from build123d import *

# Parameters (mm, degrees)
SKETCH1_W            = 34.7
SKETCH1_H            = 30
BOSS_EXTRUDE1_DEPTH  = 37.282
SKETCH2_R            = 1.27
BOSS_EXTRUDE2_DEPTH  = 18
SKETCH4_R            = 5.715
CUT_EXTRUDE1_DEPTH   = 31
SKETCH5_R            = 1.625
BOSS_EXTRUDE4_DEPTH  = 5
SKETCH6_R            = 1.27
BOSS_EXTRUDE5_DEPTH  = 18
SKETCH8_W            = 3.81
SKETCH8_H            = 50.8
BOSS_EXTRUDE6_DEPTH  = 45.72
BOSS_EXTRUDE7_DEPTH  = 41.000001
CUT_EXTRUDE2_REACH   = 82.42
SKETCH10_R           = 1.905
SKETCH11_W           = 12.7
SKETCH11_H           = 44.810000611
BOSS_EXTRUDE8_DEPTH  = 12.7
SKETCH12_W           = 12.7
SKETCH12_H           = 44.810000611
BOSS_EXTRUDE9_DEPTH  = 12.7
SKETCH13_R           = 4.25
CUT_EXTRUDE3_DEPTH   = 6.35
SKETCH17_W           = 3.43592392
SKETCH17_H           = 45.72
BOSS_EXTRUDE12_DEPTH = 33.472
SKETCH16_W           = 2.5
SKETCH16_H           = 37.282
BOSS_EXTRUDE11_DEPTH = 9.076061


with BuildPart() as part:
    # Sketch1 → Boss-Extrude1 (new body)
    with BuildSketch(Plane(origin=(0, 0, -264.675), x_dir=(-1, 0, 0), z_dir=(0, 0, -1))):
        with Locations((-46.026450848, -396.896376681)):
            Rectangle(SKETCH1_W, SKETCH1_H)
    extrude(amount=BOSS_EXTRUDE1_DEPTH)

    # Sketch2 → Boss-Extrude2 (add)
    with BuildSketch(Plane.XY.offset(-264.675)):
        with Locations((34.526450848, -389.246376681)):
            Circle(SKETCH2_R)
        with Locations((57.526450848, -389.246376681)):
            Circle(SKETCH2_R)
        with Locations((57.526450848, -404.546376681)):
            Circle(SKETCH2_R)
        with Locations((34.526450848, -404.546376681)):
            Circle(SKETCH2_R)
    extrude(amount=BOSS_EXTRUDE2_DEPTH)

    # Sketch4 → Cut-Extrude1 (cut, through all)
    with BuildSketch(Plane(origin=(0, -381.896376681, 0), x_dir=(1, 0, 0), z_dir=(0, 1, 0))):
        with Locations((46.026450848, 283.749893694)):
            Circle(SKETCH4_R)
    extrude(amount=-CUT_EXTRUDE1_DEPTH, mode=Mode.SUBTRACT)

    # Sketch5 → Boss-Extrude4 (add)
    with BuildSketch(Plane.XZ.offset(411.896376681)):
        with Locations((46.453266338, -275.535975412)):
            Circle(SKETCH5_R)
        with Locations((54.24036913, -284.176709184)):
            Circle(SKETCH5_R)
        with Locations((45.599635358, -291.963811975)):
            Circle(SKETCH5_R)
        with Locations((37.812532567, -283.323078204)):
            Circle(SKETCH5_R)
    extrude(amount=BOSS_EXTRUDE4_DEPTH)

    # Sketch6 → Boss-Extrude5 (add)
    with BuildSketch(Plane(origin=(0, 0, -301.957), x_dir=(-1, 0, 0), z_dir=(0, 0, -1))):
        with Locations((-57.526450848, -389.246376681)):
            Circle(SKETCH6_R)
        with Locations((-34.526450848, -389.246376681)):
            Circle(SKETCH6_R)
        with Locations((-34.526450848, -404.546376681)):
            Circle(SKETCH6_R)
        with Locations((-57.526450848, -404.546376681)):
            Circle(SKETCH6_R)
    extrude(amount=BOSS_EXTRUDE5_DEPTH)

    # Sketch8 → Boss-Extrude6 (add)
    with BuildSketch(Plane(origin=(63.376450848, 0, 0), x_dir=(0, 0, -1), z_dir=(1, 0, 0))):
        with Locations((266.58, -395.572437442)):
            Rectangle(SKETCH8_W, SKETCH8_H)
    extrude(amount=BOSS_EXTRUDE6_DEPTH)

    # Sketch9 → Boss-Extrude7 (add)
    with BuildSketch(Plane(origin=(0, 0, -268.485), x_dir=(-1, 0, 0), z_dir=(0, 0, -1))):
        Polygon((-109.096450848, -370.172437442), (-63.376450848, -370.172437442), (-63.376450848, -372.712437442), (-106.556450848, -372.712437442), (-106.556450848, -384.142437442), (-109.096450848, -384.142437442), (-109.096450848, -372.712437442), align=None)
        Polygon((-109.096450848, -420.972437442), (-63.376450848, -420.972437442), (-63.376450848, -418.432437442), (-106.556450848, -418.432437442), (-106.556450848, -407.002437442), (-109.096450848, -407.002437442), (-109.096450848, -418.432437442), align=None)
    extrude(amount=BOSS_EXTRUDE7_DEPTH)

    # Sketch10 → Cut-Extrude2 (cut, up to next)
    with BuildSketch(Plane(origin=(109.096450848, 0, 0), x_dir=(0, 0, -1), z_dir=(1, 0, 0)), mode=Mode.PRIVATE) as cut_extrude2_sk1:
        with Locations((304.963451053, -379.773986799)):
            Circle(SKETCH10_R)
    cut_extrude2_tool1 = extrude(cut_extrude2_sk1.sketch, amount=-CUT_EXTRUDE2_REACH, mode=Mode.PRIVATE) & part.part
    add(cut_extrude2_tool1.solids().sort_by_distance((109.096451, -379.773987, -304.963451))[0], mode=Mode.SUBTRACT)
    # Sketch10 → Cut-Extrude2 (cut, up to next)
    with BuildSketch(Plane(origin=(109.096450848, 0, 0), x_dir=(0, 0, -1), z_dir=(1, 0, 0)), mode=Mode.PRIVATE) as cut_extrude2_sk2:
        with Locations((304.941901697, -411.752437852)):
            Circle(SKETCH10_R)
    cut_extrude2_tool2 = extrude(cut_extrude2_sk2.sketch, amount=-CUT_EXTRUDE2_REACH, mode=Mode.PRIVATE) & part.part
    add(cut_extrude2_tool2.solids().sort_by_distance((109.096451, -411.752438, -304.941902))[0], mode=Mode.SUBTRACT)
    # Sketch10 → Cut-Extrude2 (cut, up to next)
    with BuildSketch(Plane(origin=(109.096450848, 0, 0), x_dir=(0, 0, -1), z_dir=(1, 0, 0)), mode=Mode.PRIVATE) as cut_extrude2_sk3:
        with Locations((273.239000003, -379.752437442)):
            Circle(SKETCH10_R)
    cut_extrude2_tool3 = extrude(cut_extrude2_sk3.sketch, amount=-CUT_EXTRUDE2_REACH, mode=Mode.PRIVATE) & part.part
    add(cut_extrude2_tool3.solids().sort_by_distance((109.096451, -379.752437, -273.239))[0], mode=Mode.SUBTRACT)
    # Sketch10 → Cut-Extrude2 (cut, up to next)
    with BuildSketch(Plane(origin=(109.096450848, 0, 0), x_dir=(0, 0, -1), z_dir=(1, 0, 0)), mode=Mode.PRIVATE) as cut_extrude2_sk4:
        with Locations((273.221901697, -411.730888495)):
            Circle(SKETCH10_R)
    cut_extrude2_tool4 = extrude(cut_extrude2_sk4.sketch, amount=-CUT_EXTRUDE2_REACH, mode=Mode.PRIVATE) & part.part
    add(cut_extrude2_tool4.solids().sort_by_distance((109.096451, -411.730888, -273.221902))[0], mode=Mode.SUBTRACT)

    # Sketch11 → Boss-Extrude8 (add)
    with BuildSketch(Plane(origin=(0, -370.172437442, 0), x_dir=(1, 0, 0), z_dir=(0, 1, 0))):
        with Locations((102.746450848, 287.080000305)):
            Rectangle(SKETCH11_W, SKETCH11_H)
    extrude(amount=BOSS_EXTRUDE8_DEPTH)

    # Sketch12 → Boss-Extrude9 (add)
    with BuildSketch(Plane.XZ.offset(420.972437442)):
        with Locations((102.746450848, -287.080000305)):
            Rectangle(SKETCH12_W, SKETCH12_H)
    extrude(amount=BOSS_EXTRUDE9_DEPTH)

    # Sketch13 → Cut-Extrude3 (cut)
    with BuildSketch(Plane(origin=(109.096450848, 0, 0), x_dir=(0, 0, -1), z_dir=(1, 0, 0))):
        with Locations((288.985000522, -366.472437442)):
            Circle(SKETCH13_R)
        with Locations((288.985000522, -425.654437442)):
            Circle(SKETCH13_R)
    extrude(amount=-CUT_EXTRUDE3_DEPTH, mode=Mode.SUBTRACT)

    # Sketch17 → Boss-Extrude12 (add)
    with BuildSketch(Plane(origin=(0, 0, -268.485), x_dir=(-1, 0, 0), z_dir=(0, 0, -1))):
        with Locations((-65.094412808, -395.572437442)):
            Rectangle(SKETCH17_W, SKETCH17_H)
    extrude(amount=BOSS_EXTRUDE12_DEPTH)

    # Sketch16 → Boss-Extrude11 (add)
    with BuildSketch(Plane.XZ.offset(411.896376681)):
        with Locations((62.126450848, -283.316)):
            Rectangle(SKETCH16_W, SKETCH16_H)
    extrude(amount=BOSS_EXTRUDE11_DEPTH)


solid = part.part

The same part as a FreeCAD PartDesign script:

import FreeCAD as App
import Part
import Sketcher
Q = App.Units.Quantity

doc = App.newDocument("Part")
body = doc.addObject("PartDesign::Body", "Body")

sketch1 = body.newObject("Sketcher::SketchObject", "Sketch")
sketch1.AttachmentSupport = (doc.getObject("XY_Plane"), [""])
sketch1.MapMode = "FlatFace"
sketch1.AttachmentOffset = App.Placement(App.Vector(0, 0, -264.675), App.Rotation())
sketch1.addGeometry([
    Part.LineSegment(App.Vector(63, -382, 0), App.Vector(63, -412, 0)),
    Part.LineSegment(App.Vector(63, -412, 0), App.Vector(29, -412, 0)),
    Part.LineSegment(App.Vector(29, -412, 0), App.Vector(29, -382, 0)),
    Part.LineSegment(App.Vector(29, -382, 0), App.Vector(63, -382, 0)),
], False)
sketch1.addConstraint([
    Sketcher.Constraint("Coincident", 0, 2, 1, 1),
    Sketcher.Constraint("Coincident", 1, 2, 2, 1),
    Sketcher.Constraint("Coincident", 2, 2, 3, 1),
    Sketcher.Constraint("Coincident", 3, 2, 0, 1),
    Sketcher.Constraint("Vertical", 0),
    Sketcher.Constraint("Horizontal", 1),
    Sketcher.Constraint("Vertical", 2),
    Sketcher.Constraint("Horizontal", 3),
    Sketcher.Constraint("DistanceX", 1, 2, 1, 1, Q("34.7 mm")),
    Sketcher.Constraint("DistanceY", 0, 2, 0, 1, Q("30 mm")),
    Sketcher.Constraint("DistanceX", -1, 1, 0, 2, Q("63.376451 mm")),
    Sketcher.Constraint("DistanceY", 0, 2, -1, 1, Q("411.896377 mm")),
])
pad1 = body.newObject("PartDesign::Pad", "Pad")
pad1.Profile = sketch1
pad1.Length = 37.282
pad1.Reversed = True

sketch2 = body.newObject("Sketcher::SketchObject", "Sketch001")
sketch2.AttachmentSupport = (doc.getObject("XY_Plane"), [""])
sketch2.MapMode = "FlatFace"
sketch2.AttachmentOffset = App.Placement(App.Vector(0, 0, -264.675), App.Rotation())
sketch2.addGeometry([
    Part.Circle(App.Vector(34.5, -389.2, 0), App.Vector(0, 0, 1), 1.3),
    Part.Circle(App.Vector(57.5, -389.2, 0), App.Vector(0, 0, 1), 1.3),
    Part.Circle(App.Vector(57.5, -404.5, 0), App.Vector(0, 0, 1), 1.3),
    Part.Circle(App.Vector(34.5, -404.5, 0), App.Vector(0, 0, 1), 1.3),
], False)
sketch2.addConstraint([
    Sketcher.Constraint("Equal", 0, 1),
    Sketcher.Constraint("Equal", 1, 2),
    Sketcher.Constraint("Equal", 2, 3),
    Sketcher.Constraint("Horizontal", 0, 3, 1, 3),
    Sketcher.Constraint("Horizontal", 2, 3, 3, 3),
    Sketcher.Constraint("Vertical", 1, 3, 2, 3),
    Sketcher.Constraint("Vertical", 0, 3, 3, 3),
    Sketcher.Constraint("Diameter", 0, Q("0.1 in")),
    Sketcher.Constraint("DistanceX", 0, 3, 1, 3, Q("23 mm")),
    Sketcher.Constraint("DistanceY", 2, 3, 1, 3, Q("15.3 mm")),
    Sketcher.Constraint("DistanceX", -1, 1, 0, 3, Q("34.526451 mm")),
    Sketcher.Constraint("DistanceY", 0, 3, -1, 1, Q("389.246377 mm")),
])
pad2 = body.newObject("PartDesign::Pad", "Pad001")
pad2.Profile = sketch2
pad2.Length = 18

sketch3 = body.newObject("Sketcher::SketchObject", "Sketch002")
sketch3.AttachmentSupport = (doc.getObject("XZ_Plane"), [""])
sketch3.MapMode = "FlatFace"
sketch3.AttachmentOffset = App.Placement(App.Vector(0, 0, 381.896377), App.Rotation())
sketch3.addGeometry(Part.Circle(App.Vector(46, -284, 0), App.Vector(0, 0, 1), 6), False)
sketch3.addConstraint([
    Sketcher.Constraint("Diameter", 0, Q("0.45 in")),
    Sketcher.Constraint("DistanceX", -1, 1, 0, 3, Q("46.026451 mm")),
    Sketcher.Constraint("DistanceY", 0, 3, -1, 1, Q("283.749894 mm")),
])
pocket1 = body.newObject("PartDesign::Pocket", "Pocket")
pocket1.Profile = sketch3
pocket1.Type = "ThroughAll"
pocket1.Reversed = True

sketch4 = body.newObject("Sketcher::SketchObject", "Sketch003")
sketch4.AttachmentSupport = (doc.getObject("XZ_Plane"), [""])
sketch4.MapMode = "FlatFace"
sketch4.AttachmentOffset = App.Placement(App.Vector(0, 0, 411.896377), App.Rotation())
sketch4.addGeometry([
    Part.Circle(App.Vector(46.5, -275.5, 0), App.Vector(0, 0, 1), 1.6),
    Part.Circle(App.Vector(54.2, -284.2, 0), App.Vector(0, 0, 1), 1.6),
    Part.Circle(App.Vector(45.6, -292, 0), App.Vector(0, 0, 1), 1.6),
    Part.Circle(App.Vector(37.8, -283.3, 0), App.Vector(0, 0, 1), 1.6),
], False)
sketch4.addConstraint([
    Sketcher.Constraint("Equal", 0, 1),
    Sketcher.Constraint("Equal", 1, 2),
    Sketcher.Constraint("Equal", 2, 3),
    Sketcher.Constraint("Diameter", 0, Q("3.25 mm")),
    Sketcher.Constraint("DistanceX", -1, 1, 1, 3, Q("54.240369 mm")),
    Sketcher.Constraint("DistanceY", 1, 3, -1, 1, Q("284.176709 mm")),
    Sketcher.Constraint("DistanceY", 2, 3, -1, 1, Q("291.963812 mm")),
    Sketcher.Constraint("DistanceY", 3, 3, -1, 1, Q("283.323078 mm")),
    Sketcher.Constraint("DistanceX", 2, 3, 0, 3, Q("0.853631 mm")),
    Sketcher.Constraint("DistanceX", -1, 1, 0, 3, Q("46.453266 mm")),
    Sketcher.Constraint("DistanceY", 0, 3, -1, 1, Q("275.535975 mm")),
    Sketcher.Constraint("DistanceX", -1, 1, 3, 3, Q("37.812533 mm")),
])
pad3 = body.newObject("PartDesign::Pad", "Pad002")
pad3.Profile = sketch4
pad3.Length = 5

sketch5 = body.newObject("Sketcher::SketchObject", "Sketch004")
sketch5.AttachmentSupport = (doc.getObject("XY_Plane"), [""])
sketch5.MapMode = "FlatFace"
sketch5.AttachmentOffset = App.Placement(App.Vector(0, 0, -301.957), App.Rotation())
sketch5.addGeometry([
    Part.Circle(App.Vector(57.5, -389.2, 0), App.Vector(0, 0, 1), 1.3),
    Part.Circle(App.Vector(34.5, -389.2, 0), App.Vector(0, 0, 1), 1.3),
    Part.Circle(App.Vector(34.5, -404.5, 0), App.Vector(0, 0, 1), 1.3),
    Part.Circle(App.Vector(57.5, -404.5, 0), App.Vector(0, 0, 1), 1.3),
], False)
sketch5.addConstraint([
    Sketcher.Constraint("Equal", 0, 1),
    Sketcher.Constraint("Equal", 1, 2),
    Sketcher.Constraint("Equal", 2, 3),
    Sketcher.Constraint("Horizontal", 0, 3, 1, 3),
    Sketcher.Constraint("Horizontal", 2, 3, 3, 3),
    Sketcher.Constraint("Vertical", 1, 3, 2, 3),
    Sketcher.Constraint("Vertical", 0, 3, 3, 3),
    Sketcher.Constraint("Diameter", 0, Q("0.1 in")),
    Sketcher.Constraint("DistanceX", 1, 3, 0, 3, Q("23 mm")),
    Sketcher.Constraint("DistanceY", 2, 3, 1, 3, Q("15.3 mm")),
    Sketcher.Constraint("DistanceX", -1, 1, 0, 3, Q("57.526451 mm")),
    Sketcher.Constraint("DistanceY", 0, 3, -1, 1, Q("389.246377 mm")),
])
pad4 = body.newObject("PartDesign::Pad", "Pad003")
pad4.Profile = sketch5
pad4.Length = 18
pad4.Reversed = True

sketch6 = body.newObject("Sketcher::SketchObject", "Sketch005")
sketch6.AttachmentSupport = (doc.getObject("YZ_Plane"), [""])
sketch6.MapMode = "FlatFace"
sketch6.AttachmentOffset = App.Placement(App.Vector(0, 0, 63.376451), App.Rotation())
sketch6.addGeometry([
    Part.LineSegment(App.Vector(-370.2, -264.7, 0), App.Vector(-421, -264.7, 0)),
    Part.LineSegment(App.Vector(-421, -264.7, 0), App.Vector(-421, -268.5, 0)),
    Part.LineSegment(App.Vector(-421, -268.5, 0), App.Vector(-370.2, -268.5, 0)),
    Part.LineSegment(App.Vector(-370.2, -268.5, 0), App.Vector(-370.2, -264.7, 0)),
], False)
sketch6.addConstraint([
    Sketcher.Constraint("Coincident", 0, 2, 1, 1),
    Sketcher.Constraint("Coincident", 1, 2, 2, 1),
    Sketcher.Constraint("Coincident", 2, 2, 3, 1),
    Sketcher.Constraint("Coincident", 3, 2, 0, 1),
    Sketcher.Constraint("Horizontal", 0),
    Sketcher.Constraint("Vertical", 1),
    Sketcher.Constraint("Horizontal", 2),
    Sketcher.Constraint("Vertical", 3),
    Sketcher.Constraint("DistanceX", 0, 2, 0, 1, Q("2 in")),
    Sketcher.Constraint("DistanceY", 1, 2, 1, 1, Q("0.15 in")),
    Sketcher.Constraint("DistanceY", 0, 2, -1, 1, Q("264.675 mm")),
    Sketcher.Constraint("DistanceX", 0, 2, -1, 1, Q("420.972437 mm")),
])
pad5 = body.newObject("PartDesign::Pad", "Pad004")
pad5.Profile = sketch6
pad5.Length = Q("1.8 in")

sketch7 = body.newObject("Sketcher::SketchObject", "Sketch006")
sketch7.AttachmentSupport = (doc.getObject("XY_Plane"), [""])
sketch7.MapMode = "FlatFace"
sketch7.AttachmentOffset = App.Placement(App.Vector(0, 0, -268.485), App.Rotation())
sketch7.addGeometry([
    Part.LineSegment(App.Vector(63.4, -370.2, 0), App.Vector(109.1, -370.2, 0)),
    Part.LineSegment(App.Vector(109.1, -370.2, 0), App.Vector(109.1, -384.1, 0)),
    Part.LineSegment(App.Vector(109.1, -384.1, 0), App.Vector(106.6, -384.1, 0)),
    Part.LineSegment(App.Vector(106.6, -384.1, 0), App.Vector(106.6, -372.7, 0)),
    Part.LineSegment(App.Vector(106.6, -372.7, 0), App.Vector(63.4, -372.7, 0)),
    Part.LineSegment(App.Vector(63.4, -372.7, 0), App.Vector(63.4, -370.2, 0)),
    Part.LineSegment(App.Vector(109.1, -421, 0), App.Vector(63.4, -421, 0)),
    Part.LineSegment(App.Vector(63.4, -421, 0), App.Vector(63.4, -418.4, 0)),
    Part.LineSegment(App.Vector(63.4, -418.4, 0), App.Vector(106.6, -418.4, 0)),
    Part.LineSegment(App.Vector(106.6, -418.4, 0), App.Vector(106.6, -407, 0)),
    Part.LineSegment(App.Vector(106.6, -407, 0), App.Vector(109.1, -407, 0)),
    Part.LineSegment(App.Vector(109.1, -407, 0), App.Vector(109.1, -421, 0)),
], False)
sketch7.addConstraint([
    Sketcher.Constraint("Coincident", 0, 2, 1, 1),
    Sketcher.Constraint("Coincident", 1, 2, 2, 1),
    Sketcher.Constraint("Coincident", 2, 2, 3, 1),
    Sketcher.Constraint("Coincident", 3, 2, 4, 1),
    Sketcher.Constraint("Coincident", 4, 2, 5, 1),
    Sketcher.Constraint("Coincident", 5, 2, 0, 1),
    Sketcher.Constraint("Coincident", 6, 2, 7, 1),
    Sketcher.Constraint("Coincident", 7, 2, 8, 1),
    Sketcher.Constraint("Coincident", 8, 2, 9, 1),
    Sketcher.Constraint("Coincident", 9, 2, 10, 1),
    Sketcher.Constraint("Coincident", 10, 2, 11, 1),
    Sketcher.Constraint("Coincident", 11, 2, 6, 1),
    Sketcher.Constraint("Horizontal", 0),
    Sketcher.Constraint("Vertical", 1),
    Sketcher.Constraint("Horizontal", 2),
    Sketcher.Constraint("Vertical", 3),
    Sketcher.Constraint("Horizontal", 4),
    Sketcher.Constraint("Vertical", 5),
    Sketcher.Constraint("Horizontal", 6),
    Sketcher.Constraint("Vertical", 7),
    Sketcher.Constraint("Horizontal", 8),
    Sketcher.Constraint("Vertical", 9),
    Sketcher.Constraint("Horizontal", 10),
    Sketcher.Constraint("Vertical", 11),
    Sketcher.Constraint("Vertical", 5, 2, 6, 2),
    Sketcher.Constraint("Vertical", 3, 2, 8, 2),
    Sketcher.Constraint("Vertical", 1, 2, 10, 2),
    Sketcher.Constraint("Equal", 10, 5),
    Sketcher.Constraint("Equal", 5, 7),
    Sketcher.Constraint("Equal", 3, 9),
    Sketcher.Constraint("DistanceX", 0, 1, 0, 2, Q("1.8 in")),
    Sketcher.Constraint("DistanceX", 2, 2, 2, 1, Q("0.1 in")),
    Sketcher.Constraint("DistanceY", 6, 2, 5, 2, Q("2 in")),
    Sketcher.Constraint("DistanceY", 1, 2, 1, 1, Q("0.55 in")),
    Sketcher.Constraint("DistanceX", -1, 1, 0, 2, Q("109.096451 mm")),
    Sketcher.Constraint("DistanceY", 0, 2, -1, 1, Q("370.172437 mm")),
])
pad6 = body.newObject("PartDesign::Pad", "Pad005")
pad6.Profile = sketch7
pad6.Length = 41.000001
pad6.Reversed = True

sketch8 = body.newObject("Sketcher::SketchObject", "Sketch007")
sketch8.AttachmentSupport = (doc.getObject("YZ_Plane"), [""])
sketch8.MapMode = "FlatFace"
sketch8.AttachmentOffset = App.Placement(App.Vector(0, 0, 109.096451), App.Rotation())
sketch8.addGeometry(Part.Circle(App.Vector(-379.8, -305, 0), App.Vector(0, 0, 1), 1.9), False)
sketch8.addConstraint([
    Sketcher.Constraint("Diameter", 0, Q("0.15 in")),
    Sketcher.Constraint("DistanceY", 0, 3, -1, 1, Q("304.963451 mm")),
    Sketcher.Constraint("DistanceX", 0, 3, -1, 1, Q("379.773987 mm")),
])
pocket2 = body.newObject("PartDesign::Pocket", "Pocket001")
pocket2.Profile = sketch8
pocket2.Type = "UpToFirst"

sketch9 = body.newObject("Sketcher::SketchObject", "Sketch008")
sketch9.AttachmentSupport = (doc.getObject("YZ_Plane"), [""])
sketch9.MapMode = "FlatFace"
sketch9.AttachmentOffset = App.Placement(App.Vector(0, 0, 109.096451), App.Rotation())
sketch9.addGeometry(Part.Circle(App.Vector(-411.8, -304.9, 0), App.Vector(0, 0, 1), 1.9), False)
sketch9.addConstraint([
    Sketcher.Constraint("Diameter", 0, Q("0.15 in")),
    Sketcher.Constraint("DistanceY", 0, 3, -1, 1, Q("304.941902 mm")),
    Sketcher.Constraint("DistanceX", 0, 3, -1, 1, Q("411.752438 mm")),
])
pocket3 = body.newObject("PartDesign::Pocket", "Pocket002")
pocket3.Profile = sketch9
pocket3.Type = "UpToFirst"

sketch10 = body.newObject("Sketcher::SketchObject", "Sketch009")
sketch10.AttachmentSupport = (doc.getObject("YZ_Plane"), [""])
sketch10.MapMode = "FlatFace"
sketch10.AttachmentOffset = App.Placement(App.Vector(0, 0, 109.096451), App.Rotation())
sketch10.addGeometry(Part.Circle(App.Vector(-379.8, -273.2, 0), App.Vector(0, 0, 1), 1.9), False)
sketch10.addConstraint([
    Sketcher.Constraint("Diameter", 0, Q("0.15 in")),
    Sketcher.Constraint("DistanceY", 0, 3, -1, 1, Q("273.239 mm")),
    Sketcher.Constraint("DistanceX", 0, 3, -1, 1, Q("379.752437 mm")),
])
pocket4 = body.newObject("PartDesign::Pocket", "Pocket003")
pocket4.Profile = sketch10
pocket4.Type = "UpToFirst"

sketch11 = body.newObject("Sketcher::SketchObject", "Sketch010")
sketch11.AttachmentSupport = (doc.getObject("YZ_Plane"), [""])
sketch11.MapMode = "FlatFace"
sketch11.AttachmentOffset = App.Placement(App.Vector(0, 0, 109.096451), App.Rotation())
sketch11.addGeometry(Part.Circle(App.Vector(-411.7, -273.2, 0), App.Vector(0, 0, 1), 1.9), False)
sketch11.addConstraint([
    Sketcher.Constraint("Diameter", 0, Q("0.15 in")),
    Sketcher.Constraint("DistanceY", 0, 3, -1, 1, Q("273.221902 mm")),
    Sketcher.Constraint("DistanceX", 0, 3, -1, 1, Q("411.730888 mm")),
])
pocket5 = body.newObject("PartDesign::Pocket", "Pocket004")
pocket5.Profile = sketch11
pocket5.Type = "UpToFirst"

sketch12 = body.newObject("Sketcher::SketchObject", "Sketch011")
sketch12.AttachmentSupport = (doc.getObject("XZ_Plane"), [""])
sketch12.MapMode = "FlatFace"
sketch12.AttachmentOffset = App.Placement(App.Vector(0, 0, 370.172437), App.Rotation())
sketch12.addGeometry([
    Part.LineSegment(App.Vector(96, -309, 0), App.Vector(96, -265, 0)),
    Part.LineSegment(App.Vector(96, -265, 0), App.Vector(109, -265, 0)),
    Part.LineSegment(App.Vector(109, -265, 0), App.Vector(109, -309, 0)),
    Part.LineSegment(App.Vector(109, -309, 0), App.Vector(96, -309, 0)),
], False)
sketch12.addConstraint([
    Sketcher.Constraint("Coincident", 0, 2, 1, 1),
    Sketcher.Constraint("Coincident", 1, 2, 2, 1),
    Sketcher.Constraint("Coincident", 2, 2, 3, 1),
    Sketcher.Constraint("Coincident", 3, 2, 0, 1),
    Sketcher.Constraint("Vertical", 0),
    Sketcher.Constraint("Horizontal", 1),
    Sketcher.Constraint("Vertical", 2),
    Sketcher.Constraint("Horizontal", 3),
    Sketcher.Constraint("DistanceX", 1, 1, 1, 2, Q("0.5 in")),
    Sketcher.Constraint("DistanceY", 0, 1, 0, 2, Q("44.810001 mm")),
    Sketcher.Constraint("DistanceY", 0, 2, -1, 1, Q("264.675 mm")),
    Sketcher.Constraint("DistanceX", -1, 1, 0, 2, Q("96.396451 mm")),
])
pad7 = body.newObject("PartDesign::Pad", "Pad006")
pad7.Profile = sketch12
pad7.Length = Q("0.5 in")
pad7.Reversed = True

sketch13 = body.newObject("Sketcher::SketchObject", "Sketch012")
sketch13.AttachmentSupport = (doc.getObject("XZ_Plane"), [""])
sketch13.MapMode = "FlatFace"
sketch13.AttachmentOffset = App.Placement(App.Vector(0, 0, 420.972437), App.Rotation())
sketch13.addGeometry([
    Part.LineSegment(App.Vector(96, -265, 0), App.Vector(96, -309, 0)),
    Part.LineSegment(App.Vector(96, -309, 0), App.Vector(109, -309, 0)),
    Part.LineSegment(App.Vector(109, -309, 0), App.Vector(109, -265, 0)),
    Part.LineSegment(App.Vector(109, -265, 0), App.Vector(96, -265, 0)),
], False)
sketch13.addConstraint([
    Sketcher.Constraint("Coincident", 0, 2, 1, 1),
    Sketcher.Constraint("Coincident", 1, 2, 2, 1),
    Sketcher.Constraint("Coincident", 2, 2, 3, 1),
    Sketcher.Constraint("Coincident", 3, 2, 0, 1),
    Sketcher.Constraint("Vertical", 0),
    Sketcher.Constraint("Horizontal", 1),
    Sketcher.Constraint("Vertical", 2),
    Sketcher.Constraint("Horizontal", 3),
    Sketcher.Constraint("DistanceX", 1, 1, 1, 2, Q("0.5 in")),
    Sketcher.Constraint("DistanceY", 0, 2, 0, 1, Q("44.810001 mm")),
    Sketcher.Constraint("DistanceY", 0, 2, -1, 1, Q("309.485001 mm")),
    Sketcher.Constraint("DistanceX", -1, 1, 0, 2, Q("96.396451 mm")),
])
pad8 = body.newObject("PartDesign::Pad", "Pad007")
pad8.Profile = sketch13
pad8.Length = Q("0.5 in")

sketch14 = body.newObject("Sketcher::SketchObject", "Sketch013")
sketch14.AttachmentSupport = (doc.getObject("YZ_Plane"), [""])
sketch14.MapMode = "FlatFace"
sketch14.AttachmentOffset = App.Placement(App.Vector(0, 0, 109.096451), App.Rotation())
sketch14.addGeometry([
    Part.Circle(App.Vector(-366.5, -289, 0), App.Vector(0, 0, 1), 4.2),
    Part.Circle(App.Vector(-425.7, -289, 0), App.Vector(0, 0, 1), 4.2),
], False)
sketch14.addConstraint([
    Sketcher.Constraint("Equal", 0, 1),
    Sketcher.Constraint("Horizontal", 0, 3, 1, 3),
    Sketcher.Constraint("Diameter", 0, Q("8.5 mm")),
    Sketcher.Constraint("DistanceX", 1, 3, 0, 3, Q("2.33 in")),
    Sketcher.Constraint("DistanceY", 0, 3, -1, 1, Q("288.985001 mm")),
    Sketcher.Constraint("DistanceX", 0, 3, -1, 1, Q("366.472437 mm")),
])
pocket6 = body.newObject("PartDesign::Pocket", "Pocket005")
pocket6.Profile = sketch14
pocket6.Length = Q("0.25 in")

sketch15 = body.newObject("Sketcher::SketchObject", "Sketch014")
sketch15.AttachmentSupport = (doc.getObject("XY_Plane"), [""])
sketch15.MapMode = "FlatFace"
sketch15.AttachmentOffset = App.Placement(App.Vector(0, 0, -268.485), App.Rotation())
sketch15.addGeometry([
    Part.LineSegment(App.Vector(66.8, -372.7, 0), App.Vector(66.8, -418.4, 0)),
    Part.LineSegment(App.Vector(66.8, -418.4, 0), App.Vector(63.4, -418.4, 0)),
    Part.LineSegment(App.Vector(63.4, -418.4, 0), App.Vector(63.4, -372.7, 0)),
    Part.LineSegment(App.Vector(63.4, -372.7, 0), App.Vector(66.8, -372.7, 0)),
], False)
sketch15.addConstraint([
    Sketcher.Constraint("Coincident", 0, 2, 1, 1),
    Sketcher.Constraint("Coincident", 1, 2, 2, 1),
    Sketcher.Constraint("Coincident", 2, 2, 3, 1),
    Sketcher.Constraint("Coincident", 3, 2, 0, 1),
    Sketcher.Constraint("Vertical", 0),
    Sketcher.Constraint("Horizontal", 1),
    Sketcher.Constraint("Vertical", 2),
    Sketcher.Constraint("Horizontal", 3),
    Sketcher.Constraint("DistanceY", 0, 2, 0, 1, Q("1.8 in")),
    Sketcher.Constraint("DistanceX", 1, 2, 1, 1, Q("3.435924 mm")),
    Sketcher.Constraint("DistanceX", -1, 1, 1, 2, Q("63.376451 mm")),
    Sketcher.Constraint("DistanceY", 0, 2, -1, 1, Q("418.432437 mm")),
])
pad9 = body.newObject("PartDesign::Pad", "Pad008")
pad9.Profile = sketch15
pad9.Length = 33.472
pad9.Reversed = True

sketch16 = body.newObject("Sketcher::SketchObject", "Sketch015")
sketch16.AttachmentSupport = (doc.getObject("XZ_Plane"), [""])
sketch16.MapMode = "FlatFace"
sketch16.AttachmentOffset = App.Placement(App.Vector(0, 0, 411.896377), App.Rotation())
sketch16.addGeometry([
    Part.LineSegment(App.Vector(60.9, -264.7, 0), App.Vector(60.9, -302, 0)),
    Part.LineSegment(App.Vector(60.9, -302, 0), App.Vector(63.4, -302, 0)),
    Part.LineSegment(App.Vector(63.4, -302, 0), App.Vector(63.4, -264.7, 0)),
    Part.LineSegment(App.Vector(63.4, -264.7, 0), App.Vector(60.9, -264.7, 0)),
], False)
sketch16.addConstraint([
    Sketcher.Constraint("Coincident", 0, 2, 1, 1),
    Sketcher.Constraint("Coincident", 1, 2, 2, 1),
    Sketcher.Constraint("Coincident", 2, 2, 3, 1),
    Sketcher.Constraint("Coincident", 3, 2, 0, 1),
    Sketcher.Constraint("Vertical", 0),
    Sketcher.Constraint("Horizontal", 1),
    Sketcher.Constraint("Vertical", 2),
    Sketcher.Constraint("Horizontal", 3),
    Sketcher.Constraint("DistanceX", 1, 1, 1, 2, Q("2.5 mm")),
    Sketcher.Constraint("DistanceY", 0, 2, 0, 1, Q("37.282 mm")),
    Sketcher.Constraint("DistanceY", 0, 2, -1, 1, Q("301.957 mm")),
    Sketcher.Constraint("DistanceX", -1, 1, 0, 2, Q("60.876451 mm")),
])
pad10 = body.newObject("PartDesign::Pad", "Pad009")
pad10.Profile = sketch16
pad10.Length = 9.076061

doc.recompute()
